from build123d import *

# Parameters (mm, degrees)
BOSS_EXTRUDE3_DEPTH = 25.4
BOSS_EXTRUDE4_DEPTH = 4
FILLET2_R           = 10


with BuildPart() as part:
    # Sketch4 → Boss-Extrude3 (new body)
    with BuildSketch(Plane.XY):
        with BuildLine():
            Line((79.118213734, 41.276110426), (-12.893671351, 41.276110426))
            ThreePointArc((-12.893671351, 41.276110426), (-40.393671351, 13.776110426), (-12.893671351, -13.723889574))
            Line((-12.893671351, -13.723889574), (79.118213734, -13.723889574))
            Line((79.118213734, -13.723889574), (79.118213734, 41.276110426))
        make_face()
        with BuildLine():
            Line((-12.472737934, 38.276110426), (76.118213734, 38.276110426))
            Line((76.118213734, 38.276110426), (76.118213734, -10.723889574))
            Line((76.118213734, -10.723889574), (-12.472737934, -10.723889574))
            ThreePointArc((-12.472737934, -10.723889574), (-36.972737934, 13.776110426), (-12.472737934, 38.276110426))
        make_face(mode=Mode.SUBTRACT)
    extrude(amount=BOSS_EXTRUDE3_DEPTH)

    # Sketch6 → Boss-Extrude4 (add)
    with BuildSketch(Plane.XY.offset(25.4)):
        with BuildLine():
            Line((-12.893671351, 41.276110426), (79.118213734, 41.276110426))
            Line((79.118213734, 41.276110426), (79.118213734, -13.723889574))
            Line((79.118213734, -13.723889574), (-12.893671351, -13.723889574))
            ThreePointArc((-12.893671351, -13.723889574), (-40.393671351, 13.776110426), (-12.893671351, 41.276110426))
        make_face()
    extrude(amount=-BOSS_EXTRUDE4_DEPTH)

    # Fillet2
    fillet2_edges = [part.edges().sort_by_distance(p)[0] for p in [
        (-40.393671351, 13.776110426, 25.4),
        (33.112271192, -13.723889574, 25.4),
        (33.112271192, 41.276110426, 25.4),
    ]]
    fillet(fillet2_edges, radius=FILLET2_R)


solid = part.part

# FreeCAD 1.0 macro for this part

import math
import FreeCAD as App
import Part
import Sketcher


def edges_at(feature, points):
    """Names of the edges that pass closest to the given points."""
    edges = feature.Shape.Edges
    near = lambda p: min(range(len(edges)), key=lambda i: edges[i].distToShape(Part.Vertex(*p))[0])
    return sorted({f"Edge{near(p) + 1}" for p in points})

doc = App.newDocument("Part")
body = doc.addObject("PartDesign::Body", "Body")

sketch1 = doc.addObject("Sketcher::SketchObject", "Sketch")
body.addObject(sketch1)
sketch1.AttachmentSupport = (doc.XY_Plane, [""])
sketch1.MapMode = "FlatFace"
sketch1.addGeometry(Part.LineSegment(App.Vector(79, 41, 0), App.Vector(-13, 41, 0)), False)
sketch1.addGeometry(Part.ArcOfCircle(Part.Circle(App.Vector(-13, 14, 0), App.Vector(0, 0, 1), 28), math.radians(90), math.radians(270)), False)
sketch1.addGeometry(Part.LineSegment(App.Vector(-13, -14, 0), App.Vector(79, -14, 0)), False)
sketch1.addGeometry(Part.LineSegment(App.Vector(79, -14, 0), App.Vector(79, 41, 0)), False)
sketch1.addGeometry(Part.ArcOfCircle(Part.Circle(App.Vector(-12, 14, 0), App.Vector(0, 0, 1), 24), math.radians(90), math.radians(270)), False)
sketch1.addGeometry(Part.LineSegment(App.Vector(-12, 38, 0), App.Vector(76, 38, 0)), False)
sketch1.addGeometry(Part.LineSegment(App.Vector(76, 38, 0), App.Vector(76, -11, 0)), False)
sketch1.addGeometry(Part.LineSegment(App.Vector(76, -11, 0), App.Vector(-12, -11, 0)), False)
sketch1.addConstraint(Sketcher.Constraint("Tangent", 0, 2, 1, 1))
sketch1.addConstraint(Sketcher.Constraint("Tangent", 1, 2, 2, 1))
sketch1.addConstraint(Sketcher.Constraint("Coincident", 2, 2, 3, 1))
sketch1.addConstraint(Sketcher.Constraint("Coincident", 3, 2, 0, 1))
sketch1.addConstraint(Sketcher.Constraint("Tangent", 4, 1, 5, 1))
sketch1.addConstraint(Sketcher.Constraint("Coincident", 5, 2, 6, 1))
sketch1.addConstraint(Sketcher.Constraint("Coincident", 6, 2, 7, 1))
sketch1.addConstraint(Sketcher.Constraint("Tangent", 7, 2, 4, 2))
sketch1.addConstraint(Sketcher.Constraint("Horizontal", 0))
sketch1.addConstraint(Sketcher.Constraint("Horizontal", 2))
sketch1.addConstraint(Sketcher.Constraint("Vertical", 3))
sketch1.addConstraint(Sketcher.Constraint("Horizontal", 5))
sketch1.addConstraint(Sketcher.Constraint("Vertical", 6))
sketch1.addConstraint(Sketcher.Constraint("Horizontal", 7))
sketch1.addConstraint(Sketcher.Constraint("Horizontal", 1, 3, 4, 3))
sketch1.addConstraint(Sketcher.Constraint("Radius", 1, 27.5))
sketch1.addConstraint(Sketcher.Constraint("Radius", 4, 24.5))
sketch1.addConstraint(Sketcher.Constraint("DistanceX", 5, 2, 3, 2, 3.0))
sketch1.addConstraint(Sketcher.Constraint("DistanceX", 5, 1, 5, 2, 88.590952))
sketch1.addConstraint(Sketcher.Constraint("DistanceX", 0, 2, 0, 1, 92.011885))
sketch1.addConstraint(Sketcher.Constraint("DistanceX", 1, 3, -1, 1, 12.893671))
sketch1.addConstraint(Sketcher.Constraint("DistanceY", -1, 1, 1, 3, 13.77611))
pad1 = doc.addObject("PartDesign::Pad", "Pad")
body.addObject(pad1)
pad1.Profile = sketch1
pad1.Length = 25.4

sketch2 = doc.addObject("Sketcher::SketchObject", "Sketch001")
body.addObject(sketch2)
sketch2.AttachmentSupport = (doc.XY_Plane, [""])
sketch2.MapMode = "FlatFace"
sketch2.AttachmentOffset = App.Placement(App.Vector(0, 0, 25.4), App.Rotation())
sketch2.addGeometry(Part.LineSegment(App.Vector(79, 41, 0), App.Vector(-13, 41, 0)), False)
sketch2.addGeometry(Part.ArcOfCircle(Part.Circle(App.Vector(-13, 14, 0), App.Vector(0, 0, 1), 28), math.radians(90), math.radians(270)), False)
sketch2.addGeometry(Part.LineSegment(App.Vector(-13, -14, 0), App.Vector(79, -14, 0)), False)
sketch2.addGeometry(Part.LineSegment(App.Vector(79, -14, 0), App.Vector(79, 41, 0)), False)
sketch2.addConstraint(Sketcher.Constraint("Tangent", 0, 2, 1, 1))
sketch2.addConstraint(Sketcher.Constraint("Tangent", 1, 2, 2, 1))
sketch2.addConstraint(Sketcher.Constraint("Coincident", 2, 2, 3, 1))
sketch2.addConstraint(Sketcher.Constraint("Coincident", 3, 2, 0, 1))
sketch2.addConstraint(Sketcher.Constraint("Horizontal", 0))
sketch2.addConstraint(Sketcher.Constraint("Horizontal", 2))
sketch2.addConstraint(Sketcher.Constraint("Vertical", 3))
sketch2.addConstraint(Sketcher.Constraint("Radius", 1, 27.5))
sketch2.addConstraint(Sketcher.Constraint("DistanceX", 0, 2, 0, 1, 92.011885))
sketch2.addConstraint(Sketcher.Constraint("DistanceX", 1, 3, -1, 1, 12.893671))
sketch2.addConstraint(Sketcher.Constraint("DistanceY", -1, 1, 1, 3, 13.77611))
pad2 = doc.addObject("PartDesign::Pad", "Pad001")
body.addObject(pad2)
pad2.Profile = sketch2
pad2.Length = 4
pad2.Reversed = True
doc.recompute()

fillet = doc.addObject("PartDesign::Fillet", "Fillet")
body.addObject(fillet)
fillet.Base = (pad2, edges_at(pad2, [(-40.394, 13.776, 25.4), (33.112, -13.724, 25.4), (33.112, 41.276, 25.4)]))
fillet.Radius = 10

doc.recompute()
